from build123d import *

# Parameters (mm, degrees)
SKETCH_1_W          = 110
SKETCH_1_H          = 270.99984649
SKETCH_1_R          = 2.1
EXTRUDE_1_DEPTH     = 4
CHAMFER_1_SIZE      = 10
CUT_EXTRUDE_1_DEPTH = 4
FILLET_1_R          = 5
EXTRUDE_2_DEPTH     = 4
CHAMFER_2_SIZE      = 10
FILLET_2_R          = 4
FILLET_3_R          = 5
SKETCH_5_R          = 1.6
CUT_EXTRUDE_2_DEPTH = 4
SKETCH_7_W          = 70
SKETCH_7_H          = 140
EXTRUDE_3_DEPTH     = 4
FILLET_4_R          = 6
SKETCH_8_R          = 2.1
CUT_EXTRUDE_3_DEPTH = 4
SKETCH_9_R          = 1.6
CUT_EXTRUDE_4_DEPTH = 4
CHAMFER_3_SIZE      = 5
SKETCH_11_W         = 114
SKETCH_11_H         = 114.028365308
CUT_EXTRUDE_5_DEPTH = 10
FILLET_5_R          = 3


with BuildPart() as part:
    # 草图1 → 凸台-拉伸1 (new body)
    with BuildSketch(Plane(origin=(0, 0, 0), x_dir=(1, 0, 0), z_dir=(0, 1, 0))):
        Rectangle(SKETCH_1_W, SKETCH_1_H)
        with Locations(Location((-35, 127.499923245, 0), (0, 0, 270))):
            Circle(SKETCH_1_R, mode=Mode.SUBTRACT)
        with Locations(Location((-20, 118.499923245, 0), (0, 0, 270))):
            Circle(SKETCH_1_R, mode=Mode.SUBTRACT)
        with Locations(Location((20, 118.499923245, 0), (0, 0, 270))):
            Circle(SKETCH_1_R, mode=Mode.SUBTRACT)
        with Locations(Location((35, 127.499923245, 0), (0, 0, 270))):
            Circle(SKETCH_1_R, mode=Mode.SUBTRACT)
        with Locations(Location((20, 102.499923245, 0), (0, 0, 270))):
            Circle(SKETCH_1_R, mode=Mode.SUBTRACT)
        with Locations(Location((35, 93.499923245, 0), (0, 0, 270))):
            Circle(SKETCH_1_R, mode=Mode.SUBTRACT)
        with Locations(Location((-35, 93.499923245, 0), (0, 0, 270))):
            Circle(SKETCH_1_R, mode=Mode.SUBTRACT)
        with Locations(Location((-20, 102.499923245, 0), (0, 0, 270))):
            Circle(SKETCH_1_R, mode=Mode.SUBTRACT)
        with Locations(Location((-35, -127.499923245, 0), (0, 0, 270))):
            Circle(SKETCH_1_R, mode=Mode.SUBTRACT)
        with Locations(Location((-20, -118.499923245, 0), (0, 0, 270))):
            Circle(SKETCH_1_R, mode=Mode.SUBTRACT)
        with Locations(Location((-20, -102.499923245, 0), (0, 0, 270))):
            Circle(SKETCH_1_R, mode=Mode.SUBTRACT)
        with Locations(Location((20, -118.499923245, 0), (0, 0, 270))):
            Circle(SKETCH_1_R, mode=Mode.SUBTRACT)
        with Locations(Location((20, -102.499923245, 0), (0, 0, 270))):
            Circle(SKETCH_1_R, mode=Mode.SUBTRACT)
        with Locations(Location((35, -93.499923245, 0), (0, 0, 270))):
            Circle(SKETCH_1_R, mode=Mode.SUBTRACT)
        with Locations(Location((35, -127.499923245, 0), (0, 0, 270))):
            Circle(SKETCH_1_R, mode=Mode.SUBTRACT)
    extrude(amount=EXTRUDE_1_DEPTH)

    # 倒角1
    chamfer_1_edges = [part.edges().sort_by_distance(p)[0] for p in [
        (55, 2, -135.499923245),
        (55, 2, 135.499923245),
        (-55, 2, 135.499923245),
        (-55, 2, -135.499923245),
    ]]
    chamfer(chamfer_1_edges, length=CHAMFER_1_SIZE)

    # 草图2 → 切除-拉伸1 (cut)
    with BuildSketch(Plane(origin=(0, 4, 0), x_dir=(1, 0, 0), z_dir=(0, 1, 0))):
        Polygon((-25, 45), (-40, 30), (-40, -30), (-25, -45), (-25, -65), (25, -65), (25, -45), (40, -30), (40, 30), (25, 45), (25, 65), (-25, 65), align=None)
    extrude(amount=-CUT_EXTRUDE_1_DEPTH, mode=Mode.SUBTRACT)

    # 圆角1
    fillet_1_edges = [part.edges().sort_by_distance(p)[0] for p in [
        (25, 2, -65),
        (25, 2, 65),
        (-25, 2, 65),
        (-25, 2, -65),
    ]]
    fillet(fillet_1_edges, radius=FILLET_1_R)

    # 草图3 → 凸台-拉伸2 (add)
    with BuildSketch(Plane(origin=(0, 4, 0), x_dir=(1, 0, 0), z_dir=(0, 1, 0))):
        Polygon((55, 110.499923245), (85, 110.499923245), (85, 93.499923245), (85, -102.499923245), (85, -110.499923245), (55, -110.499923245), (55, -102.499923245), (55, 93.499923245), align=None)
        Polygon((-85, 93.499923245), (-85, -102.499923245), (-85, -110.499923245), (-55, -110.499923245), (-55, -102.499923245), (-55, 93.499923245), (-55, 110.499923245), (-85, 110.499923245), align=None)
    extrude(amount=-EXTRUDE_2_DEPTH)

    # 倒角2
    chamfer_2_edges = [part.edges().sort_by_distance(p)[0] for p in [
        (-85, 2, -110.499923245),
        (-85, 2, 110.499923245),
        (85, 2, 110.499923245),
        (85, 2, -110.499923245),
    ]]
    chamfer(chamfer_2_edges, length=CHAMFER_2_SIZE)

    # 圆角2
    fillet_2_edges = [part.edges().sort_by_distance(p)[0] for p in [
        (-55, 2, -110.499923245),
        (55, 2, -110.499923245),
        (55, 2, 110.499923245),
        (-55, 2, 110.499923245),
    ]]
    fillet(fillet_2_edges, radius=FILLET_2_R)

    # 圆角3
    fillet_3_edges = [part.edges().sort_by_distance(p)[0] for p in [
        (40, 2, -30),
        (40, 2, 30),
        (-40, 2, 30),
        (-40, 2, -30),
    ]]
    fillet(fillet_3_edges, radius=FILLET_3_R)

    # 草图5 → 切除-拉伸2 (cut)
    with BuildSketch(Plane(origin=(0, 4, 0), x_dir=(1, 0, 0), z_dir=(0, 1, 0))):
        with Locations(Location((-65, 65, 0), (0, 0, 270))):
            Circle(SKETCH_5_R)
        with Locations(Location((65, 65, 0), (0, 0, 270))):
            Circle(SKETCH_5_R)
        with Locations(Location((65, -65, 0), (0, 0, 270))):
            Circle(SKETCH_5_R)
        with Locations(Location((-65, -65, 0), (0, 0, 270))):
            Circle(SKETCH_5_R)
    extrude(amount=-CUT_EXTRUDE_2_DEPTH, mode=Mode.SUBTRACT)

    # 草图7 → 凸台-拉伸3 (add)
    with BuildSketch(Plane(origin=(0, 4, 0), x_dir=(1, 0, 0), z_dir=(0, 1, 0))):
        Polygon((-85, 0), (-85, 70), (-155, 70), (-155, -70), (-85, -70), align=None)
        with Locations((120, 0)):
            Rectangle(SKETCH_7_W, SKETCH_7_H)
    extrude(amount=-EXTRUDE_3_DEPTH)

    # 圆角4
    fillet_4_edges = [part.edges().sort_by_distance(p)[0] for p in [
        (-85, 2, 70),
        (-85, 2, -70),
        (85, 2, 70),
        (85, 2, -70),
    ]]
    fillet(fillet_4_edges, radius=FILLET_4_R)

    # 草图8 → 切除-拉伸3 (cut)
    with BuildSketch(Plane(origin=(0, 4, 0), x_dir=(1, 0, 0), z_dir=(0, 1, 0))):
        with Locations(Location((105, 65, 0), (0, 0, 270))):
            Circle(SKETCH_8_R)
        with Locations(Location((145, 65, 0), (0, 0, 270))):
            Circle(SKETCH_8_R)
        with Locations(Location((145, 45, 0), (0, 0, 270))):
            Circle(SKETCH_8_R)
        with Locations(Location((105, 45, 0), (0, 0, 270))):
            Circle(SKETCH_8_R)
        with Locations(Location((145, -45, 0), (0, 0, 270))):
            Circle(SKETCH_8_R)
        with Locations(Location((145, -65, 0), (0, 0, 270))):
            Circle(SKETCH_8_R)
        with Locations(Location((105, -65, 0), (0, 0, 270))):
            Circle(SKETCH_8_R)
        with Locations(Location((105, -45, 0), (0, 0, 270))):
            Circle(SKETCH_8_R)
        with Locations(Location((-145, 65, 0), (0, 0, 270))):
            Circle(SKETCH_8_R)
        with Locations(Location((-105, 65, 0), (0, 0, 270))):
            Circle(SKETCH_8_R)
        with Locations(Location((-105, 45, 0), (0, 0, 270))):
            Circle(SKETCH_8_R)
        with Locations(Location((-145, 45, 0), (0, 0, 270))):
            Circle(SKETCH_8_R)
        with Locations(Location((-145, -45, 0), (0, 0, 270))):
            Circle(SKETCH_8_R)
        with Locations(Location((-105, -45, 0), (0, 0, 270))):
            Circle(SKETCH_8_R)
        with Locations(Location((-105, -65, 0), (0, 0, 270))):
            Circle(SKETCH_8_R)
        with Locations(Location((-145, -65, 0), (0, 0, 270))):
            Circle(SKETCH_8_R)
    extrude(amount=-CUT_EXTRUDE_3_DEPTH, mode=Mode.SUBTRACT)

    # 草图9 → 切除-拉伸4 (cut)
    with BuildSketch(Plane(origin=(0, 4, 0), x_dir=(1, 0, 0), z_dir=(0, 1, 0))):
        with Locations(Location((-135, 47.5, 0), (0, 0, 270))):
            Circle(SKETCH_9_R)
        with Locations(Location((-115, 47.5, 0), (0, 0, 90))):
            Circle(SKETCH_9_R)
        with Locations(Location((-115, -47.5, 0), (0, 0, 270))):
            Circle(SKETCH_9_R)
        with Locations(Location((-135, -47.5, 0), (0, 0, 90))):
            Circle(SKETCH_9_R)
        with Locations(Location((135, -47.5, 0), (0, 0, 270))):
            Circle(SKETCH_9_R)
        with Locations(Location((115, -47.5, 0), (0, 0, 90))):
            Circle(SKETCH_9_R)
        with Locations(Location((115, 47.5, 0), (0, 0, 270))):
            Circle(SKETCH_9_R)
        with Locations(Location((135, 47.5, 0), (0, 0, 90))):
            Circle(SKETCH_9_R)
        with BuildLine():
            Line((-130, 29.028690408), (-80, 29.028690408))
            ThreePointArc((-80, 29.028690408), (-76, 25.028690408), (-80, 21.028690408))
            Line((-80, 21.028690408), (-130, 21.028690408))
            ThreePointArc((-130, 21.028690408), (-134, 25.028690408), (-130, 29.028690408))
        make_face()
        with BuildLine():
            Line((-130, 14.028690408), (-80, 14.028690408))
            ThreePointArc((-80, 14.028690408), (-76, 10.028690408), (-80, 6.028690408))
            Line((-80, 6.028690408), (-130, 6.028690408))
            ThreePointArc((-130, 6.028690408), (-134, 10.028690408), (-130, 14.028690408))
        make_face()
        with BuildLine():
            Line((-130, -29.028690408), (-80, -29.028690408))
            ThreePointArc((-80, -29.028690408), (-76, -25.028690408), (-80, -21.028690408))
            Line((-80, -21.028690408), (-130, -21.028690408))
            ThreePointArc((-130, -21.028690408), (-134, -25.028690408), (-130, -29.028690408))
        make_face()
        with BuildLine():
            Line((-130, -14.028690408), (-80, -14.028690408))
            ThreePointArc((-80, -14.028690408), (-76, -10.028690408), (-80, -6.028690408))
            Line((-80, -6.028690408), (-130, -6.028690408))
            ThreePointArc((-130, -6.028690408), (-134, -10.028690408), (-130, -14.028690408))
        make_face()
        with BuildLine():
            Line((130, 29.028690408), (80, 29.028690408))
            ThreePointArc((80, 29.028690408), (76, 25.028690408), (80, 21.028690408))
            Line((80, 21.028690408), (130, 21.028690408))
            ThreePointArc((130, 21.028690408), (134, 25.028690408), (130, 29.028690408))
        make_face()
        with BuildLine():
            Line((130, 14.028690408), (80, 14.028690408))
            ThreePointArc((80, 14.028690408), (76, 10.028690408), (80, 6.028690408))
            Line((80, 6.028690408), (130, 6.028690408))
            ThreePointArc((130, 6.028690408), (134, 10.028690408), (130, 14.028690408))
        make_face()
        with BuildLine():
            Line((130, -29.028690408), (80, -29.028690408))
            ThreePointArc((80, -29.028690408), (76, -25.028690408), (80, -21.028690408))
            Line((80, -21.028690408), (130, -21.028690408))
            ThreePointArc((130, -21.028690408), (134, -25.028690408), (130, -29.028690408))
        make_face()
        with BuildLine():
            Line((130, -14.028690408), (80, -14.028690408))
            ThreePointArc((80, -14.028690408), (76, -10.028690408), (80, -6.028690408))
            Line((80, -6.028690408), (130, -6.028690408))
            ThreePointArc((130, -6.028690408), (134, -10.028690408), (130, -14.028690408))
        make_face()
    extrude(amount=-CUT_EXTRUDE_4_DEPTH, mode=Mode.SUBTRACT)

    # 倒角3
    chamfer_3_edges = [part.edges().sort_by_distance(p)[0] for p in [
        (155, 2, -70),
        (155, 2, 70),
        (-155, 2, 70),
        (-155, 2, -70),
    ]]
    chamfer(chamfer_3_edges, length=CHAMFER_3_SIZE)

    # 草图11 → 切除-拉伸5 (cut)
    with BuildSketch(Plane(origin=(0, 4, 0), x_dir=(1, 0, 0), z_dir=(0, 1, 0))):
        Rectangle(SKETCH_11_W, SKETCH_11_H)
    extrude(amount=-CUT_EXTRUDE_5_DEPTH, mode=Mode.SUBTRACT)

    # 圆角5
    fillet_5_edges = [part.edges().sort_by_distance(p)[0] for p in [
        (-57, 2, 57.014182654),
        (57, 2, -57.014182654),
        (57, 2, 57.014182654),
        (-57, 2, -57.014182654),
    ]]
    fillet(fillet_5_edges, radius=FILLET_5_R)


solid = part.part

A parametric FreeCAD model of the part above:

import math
import FreeCAD as App
import Part
import Sketcher
from FreeCAD import Vector


def edges_at(feature, points):
    """Names of the edges that pass closest to the given points."""
    edges = feature.Shape.Edges
    near = lambda p: min(range(len(edges)), key=lambda i: edges[i].distToShape(Part.Vertex(*p))[0])
    return sorted({f"Edge{near(p) + 1}" for p in points})

doc = App.newDocument("Part")
body = doc.addObject("PartDesign::Body", "Body")

sketch1 = body.newObject("Sketcher::SketchObject", "Sketch")
sketch1.AttachmentSupport = (doc.getObject("XZ_Plane"), [""])
sketch1.MapMode = "FlatFace"
sketch1.addGeometry(Part.LineSegment(Vector(-55, -135.5, 0), Vector(-55, 135.5, 0)), False)
sketch1.addGeometry(Part.LineSegment(Vector(-55, 135.5, 0), Vector(55, 135.5, 0)), False)
sketch1.addGeometry(Part.LineSegment(Vector(55, 135.5, 0), Vector(55, -135.5, 0)), False)
sketch1.addGeometry(Part.LineSegment(Vector(55, -135.5, 0), Vector(-55, -135.5, 0)), False)
sketch1.addGeometry(Part.Circle(Vector(-35, 127.5, 0), Vector(0, 0, 1), 2.1), False)
sketch1.addGeometry(Part.Circle(Vector(-20, 118.5, 0), Vector(0, 0, 1), 2.1), False)
sketch1.addGeometry(Part.Circle(Vector(-20, 102.5, 0), Vector(0, 0, 1), 2.1), False)
sketch1.addGeometry(Part.Circle(Vector(20, 118.5, 0), Vector(0, 0, 1), 2.1), False)
sketch1.addGeometry(Part.Circle(Vector(20, 102.5, 0), Vector(0, 0, 1), 2.1), False)
sketch1.addGeometry(Part.Circle(Vector(35, 127.5, 0), Vector(0, 0, 1), 2.1), False)
sketch1.addGeometry(Part.Circle(Vector(35, 93.5, 0), Vector(0, 0, 1), 2.1), False)
sketch1.addGeometry(Part.Circle(Vector(-35, -93.5, 0), Vector(0, 0, 1), 2.1), False)
sketch1.addGeometry(Part.Circle(Vector(-35, -127.5, 0), Vector(0, 0, 1), 2.1), False)
sketch1.addGeometry(Part.Circle(Vector(-20, -102.5, 0), Vector(0, 0, 1), 2.1), False)
sketch1.addGeometry(Part.Circle(Vector(-20, -118.5, 0), Vector(0, 0, 1), 2.1), False)
sketch1.addGeometry(Part.Circle(Vector(35, -93.5, 0), Vector(0, 0, 1), 2.1), False)
sketch1.addGeometry(Part.Circle(Vector(20, -102.5, 0), Vector(0, 0, 1), 2.1), False)
sketch1.addGeometry(Part.Circle(Vector(20, -118.5, 0), Vector(0, 0, 1), 2.1), False)
sketch1.addGeometry(Part.Circle(Vector(35, -127.5, 0), Vector(0, 0, 1), 2.1), False)
sketch1.addConstraint(Sketcher.Constraint("Coincident", 0, 2, 1, 1))
sketch1.addConstraint(Sketcher.Constraint("Coincident", 1, 2, 2, 1))
sketch1.addConstraint(Sketcher.Constraint("Coincident", 2, 2, 3, 1))
sketch1.addConstraint(Sketcher.Constraint("Coincident", 3, 2, 0, 1))
sketch1.addConstraint(Sketcher.Constraint("Vertical", 0))
sketch1.addConstraint(Sketcher.Constraint("Horizontal", 1))
sketch1.addConstraint(Sketcher.Constraint("Vertical", 2))
sketch1.addConstraint(Sketcher.Constraint("Horizontal", 3))
sketch1.addConstraint(Sketcher.Constraint("Equal", 4, 5))
sketch1.addConstraint(Sketcher.Constraint("Equal", 5, 6))
sketch1.addConstraint(Sketcher.Constraint("Equal", 6, 7))
sketch1.addConstraint(Sketcher.Constraint("Equal", 7, 8))
sketch1.addConstraint(Sketcher.Constraint("Equal", 8, 9))
sketch1.addConstraint(Sketcher.Constraint("Equal", 9, 10))
sketch1.addConstraint(Sketcher.Constraint("Equal", 10, 11))
sketch1.addConstraint(Sketcher.Constraint("Equal", 11, 12))
sketch1.addConstraint(Sketcher.Constraint("Equal", 12, 13))
sketch1.addConstraint(Sketcher.Constraint("Equal", 13, 14))
sketch1.addConstraint(Sketcher.Constraint("Equal", 14, 15))
sketch1.addConstraint(Sketcher.Constraint("Equal", 15, 16))
sketch1.addConstraint(Sketcher.Constraint("Equal", 16, 17))
sketch1.addConstraint(Sketcher.Constraint("Equal", 17, 18))
sketch1.addConstraint(Sketcher.Constraint("Symmetric", 10, 3, 11, 3, -1, 1))
sketch1.addConstraint(Sketcher.Constraint("Symmetric", 9, 3, 12, 3, -1, 1))
sketch1.addConstraint(Sketcher.Constraint("Symmetric", 8, 3, 13, 3, -1, 1))
sketch1.addConstraint(Sketcher.Constraint("Symmetric", 7, 3, 14, 3, -1, 1))
sketch1.addConstraint(Sketcher.Constraint("Symmetric", 6, 3, 16, 3, -1, 1))
sketch1.addConstraint(Sketcher.Constraint("Symmetric", 5, 3, 17, 3, -1, 1))
sketch1.addConstraint(Sketcher.Constraint("Symmetric", 4, 3, 18, 3, -1, 1))
sketch1.addConstraint(Sketcher.Constraint("Symmetric", 0, 2, 2, 2, -1, 1))
sketch1.addConstraint(Sketcher.Constraint("Symmetric", 5, 3, 7, 3, -2))
sketch1.addConstraint(Sketcher.Constraint("Symmetric", 6, 3, 8, 3, -2))
sketch1.addConstraint(Sketcher.Constraint("Symmetric", 4, 3, 9, 3, -2))
sketch1.addConstraint(Sketcher.Constraint("Symmetric", 11, 3, 15, 3, -2))
sketch1.addConstraint(Sketcher.Constraint("Vertical", 5, 3, 6, 3))
sketch1.addConstraint(Sketcher.Constraint("Vertical", 9, 3, 10, 3))
sketch1.addConstraint(Sketcher.Constraint("Diameter", 4, 4.2))
sketch1.addConstraint(Sketcher.Constraint("DistanceX", 1, 1, 1, 2, 110.0))
sketch1.addConstraint(Sketcher.Constraint("DistanceX", 4, 3, -1, 1, 35.0))
sketch1.addConstraint(Sketcher.Constraint("DistanceX", 5, 3, -1, 1, 20.0))
sketch1.addConstraint(Sketcher.Constraint("DistanceY", 5, 3, 4, 3, 9.0))
sketch1.addConstraint(Sketcher.Constraint("DistanceY", 6, 3, 5, 3, 16.0))
sketch1.addConstraint(Sketcher.Constraint("DistanceY", 10, 3, 8, 3, 9.0))
sketch1.addConstraint(Sketcher.Constraint("DistanceY", 4, 3, 0, 2, 8.0))
sketch1.addConstraint(Sketcher.Constraint("DistanceY", 0, 1, 0, 2, 270.999846))
pad1 = body.newObject("PartDesign::Pad", "Pad")
pad1.Profile = sketch1
pad1.Length = 4
pad1.Reversed = True
doc.recompute()

chamfer = body.newObject("PartDesign::Chamfer", "Chamfer")
chamfer.Base = (pad1, edges_at(pad1, [
    (55, 2, -135.5),
    (55, 2, 135.5),
    (-55, 2, 135.5),
    (-55, 2, -135.5),
]))
chamfer.Size = 10

sketch2 = body.newObject("Sketcher::SketchObject", "Sketch001")
sketch2.AttachmentSupport = (doc.getObject("XZ_Plane"), [""])
sketch2.MapMode = "FlatFace"
sketch2.AttachmentOffset = App.Placement(Vector(0, 0, -4), App.Rotation())
sketch2.addGeometry(Part.LineSegment(Vector(-25, -45, 0), Vector(-40, -30, 0)), False)
sketch2.addGeometry(Part.LineSegment(Vector(-40, -30, 0), Vector(-40, 30, 0)), False)
sketch2.addGeometry(Part.LineSegment(Vector(-40, 30, 0), Vector(-25, 45, 0)), False)
sketch2.addGeometry(Part.LineSegment(Vector(-25, 45, 0), Vector(-25, 65, 0)), False)
sketch2.addGeometry(Part.LineSegment(Vector(-25, 65, 0), Vector(25, 65, 0)), False)
sketch2.addGeometry(Part.LineSegment(Vector(25, 65, 0), Vector(25, 45, 0)), False)
sketch2.addGeometry(Part.LineSegment(Vector(25, 45, 0), Vector(40, 30, 0)), False)
sketch2.addGeometry(Part.LineSegment(Vector(40, 30, 0), Vector(40, -30, 0)), False)
sketch2.addGeometry(Part.LineSegment(Vector(40, -30, 0), Vector(25, -45, 0)), False)
sketch2.addGeometry(Part.LineSegment(Vector(25, -45, 0), Vector(25, -65, 0)), False)
sketch2.addGeometry(Part.LineSegment(Vector(25, -65, 0), Vector(-25, -65, 0)), False)
sketch2.addGeometry(Part.LineSegment(Vector(-25, -65, 0), Vector(-25, -45, 0)), False)
sketch2.addConstraint(Sketcher.Constraint("Coincident", 0, 2, 1, 1))
sketch2.addConstraint(Sketcher.Constraint("Coincident", 1, 2, 2, 1))
sketch2.addConstraint(Sketcher.Constraint("Coincident", 2, 2, 3, 1))
sketch2.addConstraint(Sketcher.Constraint("Coincident", 3, 2, 4, 1))
sketch2.addConstraint(Sketcher.Constraint("Coincident", 4, 2, 5, 1))
sketch2.addConstraint(Sketcher.Constraint("Coincident", 5, 2, 6, 1))
sketch2.addConstraint(Sketcher.Constraint("Coincident", 6, 2, 7, 1))
sketch2.addConstraint(Sketcher.Constraint("Coincident", 7, 2, 8, 1))
sketch2.addConstraint(Sketcher.Constraint("Coincident", 8, 2, 9, 1))
sketch2.addConstraint(Sketcher.Constraint("Coincident", 9, 2, 10, 1))
sketch2.addConstraint(Sketcher.Constraint("Coincident", 10, 2, 11, 1))
sketch2.addConstraint(Sketcher.Constraint("Coincident", 11, 2, 0, 1))
sketch2.addConstraint(Sketcher.Constraint("Vertical", 1))
sketch2.addConstraint(Sketcher.Constraint("Vertical", 3))
sketch2.addConstraint(Sketcher.Constraint("Horizontal", 4))
sketch2.addConstraint(Sketcher.Constraint("Vertical", 5))
sketch2.addConstraint(Sketcher.Constraint("Vertical", 7))
sketch2.addConstraint(Sketcher.Constraint("Vertical", 9))
sketch2.addConstraint(Sketcher.Constraint("Horizontal", 10))
sketch2.addConstraint(Sketcher.Constraint("Vertical", 11))
sketch2.addConstraint(Sketcher.Constraint("Symmetric", 0, 2, 6, 2, -1, 1))
sketch2.addConstraint(Sketcher.Constraint("Symmetric", 2, 2, 8, 2, -1, 1))
sketch2.addConstraint(Sketcher.Constraint("Symmetric", 4, 2, 10, 2, -1, 1))
sketch2.addConstraint(Sketcher.Constraint("Symmetric", 2, 2, 5, 2, -2))
sketch2.addConstraint(Sketcher.Constraint("Perpendicular", 0, 2))
sketch2.addConstraint(Sketcher.Constraint("Perpendicular", 2, 6))
sketch2.addConstraint(Sketcher.Constraint("Perpendicular", 6, 8))
sketch2.addConstraint(Sketcher.Constraint("Horizontal", 1, 2, 6, 2))
sketch2.addConstraint(Sketcher.Constraint("DistanceX", 4, 1, 4, 2, 50.0))
sketch2.addConstraint(Sketcher.Constraint("DistanceY", 1, 1, 1, 2, 60.0))
sketch2.addConstraint(Sketcher.Constraint("DistanceY", 3, 1, 3, 2, 20.0))
sketch2.addConstraint(Sketcher.Constraint("DistanceX", 0, 2, -1, 1, 40.0))
pocket1 = body.newObject("PartDesign::Pocket", "Pocket")
pocket1.Profile = sketch2
pocket1.Length = 4
pocket1.Reversed = True
doc.recompute()

fillet = body.newObject("PartDesign::Fillet", "Fillet")
fillet.Base = (pocket1, edges_at(pocket1, [
    (25, 2, -65),
    (25, 2, 65),
    (-25, 2, 65),
    (-25, 2, -65),
]))
fillet.Radius = 5

sketch3 = body.newObject("Sketcher::SketchObject", "Sketch002")
sketch3.AttachmentSupport = (doc.getObject("XZ_Plane"), [""])
sketch3.MapMode = "FlatFace"
sketch3.AttachmentOffset = App.Placement(Vector(0, 0, -4), App.Rotation())
sketch3.addGeometry(Part.LineSegment(Vector(85, -110, 0), Vector(55, -110, 0)), False)
sketch3.addGeometry(Part.LineSegment(Vector(55, -110, 0), Vector(55, 110, 0)), False)
sketch3.addGeometry(Part.LineSegment(Vector(55, 110, 0), Vector(85, 110, 0)), False)
sketch3.addGeometry(Part.LineSegment(Vector(85, 110, 0), Vector(85, -110, 0)), False)
sketch3.addGeometry(Part.LineSegment(Vector(-85, 110, 0), Vector(-55, 110, 0)), False)
sketch3.addGeometry(Part.LineSegment(Vector(-55, 110, 0), Vector(-55, -110, 0)), False)
sketch3.addGeometry(Part.LineSegment(Vector(-55, -110, 0), Vector(-85, -110, 0)), False)
sketch3.addGeometry(Part.LineSegment(Vector(-85, -110, 0), Vector(-85, 110, 0)), False)
sketch3.addConstraint(Sketcher.Constraint("Coincident", 0, 2, 1, 1))
sketch3.addConstraint(Sketcher.Constraint("Coincident", 1, 2, 2, 1))
sketch3.addConstraint(Sketcher.Constraint("Coincident", 2, 2, 3, 1))
sketch3.addConstraint(Sketcher.Constraint("Coincident", 3, 2, 0, 1))
sketch3.addConstraint(Sketcher.Constraint("Coincident", 4, 2, 5, 1))
sketch3.addConstraint(Sketcher.Constraint("Coincident", 5, 2, 6, 1))
sketch3.addConstraint(Sketcher.Constraint("Coincident", 6, 2, 7, 1))
sketch3.addConstraint(Sketcher.Constraint("Coincident", 7, 2, 4, 1))
sketch3.addConstraint(Sketcher.Constraint("Horizontal", 0))
sketch3.addConstraint(Sketcher.Constraint("Vertical", 1))
sketch3.addConstraint(Sketcher.Constraint("Horizontal", 2))
sketch3.addConstraint(Sketcher.Constraint("Vertical", 3))
sketch3.addConstraint(Sketcher.Constraint("Horizontal", 4))
sketch3.addConstraint(Sketcher.Constraint("Vertical", 5))
sketch3.addConstraint(Sketcher.Constraint("Horizontal", 6))
sketch3.addConstraint(Sketcher.Constraint("Vertical", 7))
sketch3.addConstraint(Sketcher.Constraint("Symmetric", 0, 2, 4, 2, -1, 1))
sketch3.addConstraint(Sketcher.Constraint("Symmetric", 2, 2, 6, 2, -1, 1))
sketch3.addConstraint(Sketcher.Constraint("Horizontal", 2, 2, 4, 2))
sketch3.addConstraint(Sketcher.Constraint("DistanceX", 0, 2, 0, 1, 30.0))
sketch3.addConstraint(Sketcher.Constraint("DistanceX", -1, 1, 0, 2, 55.0))
sketch3.addConstraint(Sketcher.Constraint("DistanceY", 1, 1, 1, 2, 220.999846))
pad2 = body.newObject("PartDesign::Pad", "Pad001")
pad2.Profile = sketch3
pad2.Length = 4
doc.recompute()

chamfer2 = body.newObject("PartDesign::Chamfer", "Chamfer001")
chamfer2.Base = (pad2, edges_at(pad2, [
    (-85, 2, -110.5),
    (-85, 2, 110.5),
    (85, 2, 110.5),
    (85, 2, -110.5),
]))
chamfer2.Size = 10
doc.recompute()

fillet2 = body.newObject("PartDesign::Fillet", "Fillet001")
fillet2.Base = (chamfer2, edges_at(chamfer2, [
    (-55, 2, -110.5),
    (55, 2, -110.5),
    (55, 2, 110.5),
    (-55, 2, 110.5),
]))
fillet2.Radius = 4
doc.recompute()

fillet3 = body.newObject("PartDesign::Fillet", "Fillet002")
fillet3.Base = (fillet2, edges_at(fillet2, [
    (40, 2, -30),
    (40, 2, 30),
    (-40, 2, 30),
    (-40, 2, -30),
]))
fillet3.Radius = 5

sketch4 = body.newObject("Sketcher::SketchObject", "Sketch003")
sketch4.AttachmentSupport = (doc.getObject("XZ_Plane"), [""])
sketch4.MapMode = "FlatFace"
sketch4.AttachmentOffset = App.Placement(Vector(0, 0, -4), App.Rotation())
sketch4.addGeometry(Part.Circle(Vector(-65, -65, 0), Vector(0, 0, 1), 1.6), False)
sketch4.addGeometry(Part.Circle(Vector(65, -65, 0), Vector(0, 0, 1), 1.6), False)
sketch4.addGeometry(Part.Circle(Vector(65, 65, 0), Vector(0, 0, 1), 1.6), False)
sketch4.addGeometry(Part.Circle(Vector(-65, 65, 0), Vector(0, 0, 1), 1.6), False)
sketch4.addConstraint(Sketcher.Constraint("Equal", 0, 1))
sketch4.addConstraint(Sketcher.Constraint("Equal", 1, 2))
sketch4.addConstraint(Sketcher.Constraint("Equal", 2, 3))
sketch4.addConstraint(Sketcher.Constraint("Symmetric", 0, 3, 2, 3, -1, 1))
sketch4.addConstraint(Sketcher.Constraint("Symmetric", 1, 3, 3, 3, -1, 1))
sketch4.addConstraint(Sketcher.Constraint("Symmetric", 0, 3, 1, 3, -2))
sketch4.addConstraint(Sketcher.Constraint("Diameter", 0, 3.2))
sketch4.addConstraint(Sketcher.Constraint("DistanceX", 0, 3, -1, 1, 65.0))
sketch4.addConstraint(Sketcher.Constraint("DistanceY", 0, 3, -1, 1, 65.0))
pocket2 = body.newObject("PartDesign::Pocket", "Pocket001")
pocket2.Profile = sketch4
pocket2.Length = 4
pocket2.Reversed = True

sketch5 = body.newObject("Sketcher::SketchObject", "Sketch004")
sketch5.AttachmentSupport = (doc.getObject("XZ_Plane"), [""])
sketch5.MapMode = "FlatFace"
sketch5.AttachmentOffset = App.Placement(Vector(0, 0, -4), App.Rotation())
sketch5.addGeometry(Part.LineSegment(Vector(-85, -70, 0), Vector(-155, -70, 0)), False)
sketch5.addGeometry(Part.LineSegment(Vector(-155, -70, 0), Vector(-155, 70, 0)), False)
sketch5.addGeometry(Part.LineSegment(Vector(-155, 70, 0), Vector(-85, 70, 0)), False)
sketch5.addGeometry(Part.LineSegment(Vector(-85, 70, 0), Vector(-85, -70, 0)), False)
sketch5.addGeometry(Part.LineSegment(Vector(85, -70, 0), Vector(85, 70, 0)), False)
sketch5.addGeometry(Part.LineSegment(Vector(85, 70, 0), Vector(155, 70, 0)), False)
sketch5.addGeometry(Part.LineSegment(Vector(155, 70, 0), Vector(155, -70, 0)), False)
sketch5.addGeometry(Part.LineSegment(Vector(155, -70, 0), Vector(85, -70, 0)), False)
sketch5.addConstraint(Sketcher.Constraint("Coincident", 0, 2, 1, 1))
sketch5.addConstraint(Sketcher.Constraint("Coincident", 1, 2, 2, 1))
sketch5.addConstraint(Sketcher.Constraint("Coincident", 2, 2, 3, 1))
sketch5.addConstraint(Sketcher.Constraint("Coincident", 3, 2, 0, 1))
sketch5.addConstraint(Sketcher.Constraint("Coincident", 4, 2, 5, 1))
sketch5.addConstraint(Sketcher.Constraint("Coincident", 5, 2, 6, 1))
sketch5.addConstraint(Sketcher.Constraint("Coincident", 6, 2, 7, 1))
sketch5.addConstraint(Sketcher.Constraint("Coincident", 7, 2, 4, 1))
sketch5.addConstraint(Sketcher.Constraint("Horizontal", 0))
sketch5.addConstraint(Sketcher.Constraint("Vertical", 1))
sketch5.addConstraint(Sketcher.Constraint("Horizontal", 2))
sketch5.addConstraint(Sketcher.Constraint("Vertical", 3))
sketch5.addConstraint(Sketcher.Constraint("Vertical", 4))
sketch5.addConstraint(Sketcher.Constraint("Horizontal", 5))
sketch5.addConstraint(Sketcher.Constraint("Vertical", 6))
sketch5.addConstraint(Sketcher.Constraint("Horizontal", 7))
sketch5.addConstraint(Sketcher.Constraint("Symmetric", 3, 2, 4, 2, -1, 1))
sketch5.addConstraint(Sketcher.Constraint("Symmetric", 1, 2, 6, 2, -1, 1))
sketch5.addConstraint(Sketcher.Constraint("Horizontal", 2, 2, 4, 2))
sketch5.addConstraint(Sketcher.Constraint("DistanceX", 0, 2, 0, 1, 70.0))
sketch5.addConstraint(Sketcher.Constraint("DistanceY", 1, 1, 1, 2, 140.0))
sketch5.addConstraint(Sketcher.Constraint("DistanceX", 0, 2, -1, 1, 155.0))
pad3 = body.newObject("PartDesign::Pad", "Pad002")
pad3.Profile = sketch5
pad3.Length = 4
doc.recompute()

fillet4 = body.newObject("PartDesign::Fillet", "Fillet003")
fillet4.Base = (pad3, edges_at(pad3, [
    (-85, 2, 70),
    (-85, 2, -70),
    (85, 2, 70),
    (85, 2, -70),
]))
fillet4.Radius = 6

sketch6 = body.newObject("Sketcher::SketchObject", "Sketch005")
sketch6.AttachmentSupport = (doc.getObject("XZ_Plane"), [""])
sketch6.MapMode = "FlatFace"
sketch6.AttachmentOffset = App.Placement(Vector(0, 0, -4), App.Rotation())
sketch6.addGeometry(Part.Circle(Vector(105, -65, 0), Vector(0, 0, 1), 2.1), False)
sketch6.addGeometry(Part.Circle(Vector(145, -65, 0), Vector(0, 0, 1), 2.1), False)
sketch6.addGeometry(Part.Circle(Vector(145, -45, 0), Vector(0, 0, 1), 2.1), False)
sketch6.addGeometry(Part.Circle(Vector(105, -45, 0), Vector(0, 0, 1), 2.1), False)
sketch6.addGeometry(Part.Circle(Vector(145, 45, 0), Vector(0, 0, 1), 2.1), False)
sketch6.addGeometry(Part.Circle(Vector(145, 65, 0), Vector(0, 0, 1), 2.1), False)
sketch6.addGeometry(Part.Circle(Vector(105, 65, 0), Vector(0, 0, 1), 2.1), False)
sketch6.addGeometry(Part.Circle(Vector(105, 45, 0), Vector(0, 0, 1), 2.1), False)
sketch6.addGeometry(Part.Circle(Vector(-145, -65, 0), Vector(0, 0, 1), 2.1), False)
sketch6.addGeometry(Part.Circle(Vector(-105, -65, 0), Vector(0, 0, 1), 2.1), False)
sketch6.addGeometry(Part.Circle(Vector(-105, -45, 0), Vector(0, 0, 1), 2.1), False)
sketch6.addGeometry(Part.Circle(Vector(-145, -45, 0), Vector(0, 0, 1), 2.1), False)
sketch6.addGeometry(Part.Circle(Vector(-145, 45, 0), Vector(0, 0, 1), 2.1), False)
sketch6.addGeometry(Part.Circle(Vector(-105, 45, 0), Vector(0, 0, 1), 2.1), False)
sketch6.addGeometry(Part.Circle(Vector(-105, 65, 0), Vector(0, 0, 1), 2.1), False)
sketch6.addGeometry(Part.Circle(Vector(-145, 65, 0), Vector(0, 0, 1), 2.1), False)
sketch6.addConstraint(Sketcher.Constraint("Equal", 0, 1))
sketch6.addConstraint(Sketcher.Constraint("Equal", 1, 2))
sketch6.addConstraint(Sketcher.Constraint("Equal", 2, 3))
sketch6.addConstraint(Sketcher.Constraint("Equal", 3, 4))
sketch6.addConstraint(Sketcher.Constraint("Equal", 4, 5))
sketch6.addConstraint(Sketcher.Constraint("Equal", 5, 6))
sketch6.addConstraint(Sketcher.Constraint("Equal", 6, 7))
sketch6.addConstraint(Sketcher.Constraint("Equal", 7, 8))
sketch6.addConstraint(Sketcher.Constraint("Equal", 8, 9))
sketch6.addConstraint(Sketcher.Constraint("Equal", 9, 10))
sketch6.addConstraint(Sketcher.Constraint("Equal", 10, 11))
sketch6.addConstraint(Sketcher.Constraint("Equal", 11, 12))
sketch6.addConstraint(Sketcher.Constraint("Equal", 12, 13))
sketch6.addConstraint(Sketcher.Constraint("Equal", 13, 14))
sketch6.addConstraint(Sketcher.Constraint("Equal", 14, 15))
sketch6.addConstraint(Sketcher.Constraint("Symmetric", 5, 3, 8, 3, -1, 1))
sketch6.addConstraint(Sketcher.Constraint("Symmetric", 6, 3, 9, 3, -1, 1))
sketch6.addConstraint(Sketcher.Constraint("Symmetric", 7, 3, 10, 3, -1, 1))
sketch6.addConstraint(Sketcher.Constraint("Symmetric", 4, 3, 11, 3, -1, 1))
sketch6.addConstraint(Sketcher.Constraint("Symmetric", 2, 3, 12, 3, -1, 1))
sketch6.addConstraint(Sketcher.Constraint("Symmetric", 3, 3, 13, 3, -1, 1))
sketch6.addConstraint(Sketcher.Constraint("Symmetric", 0, 3, 14, 3, -1, 1))
sketch6.addConstraint(Sketcher.Constraint("Symmetric", 1, 3, 15, 3, -1, 1))
sketch6.addConstraint(Sketcher.Constraint("Symmetric", 1, 3, 8, 3, -2))
sketch6.addConstraint(Sketcher.Constraint("Symmetric", 0, 3, 9, 3, -2))
sketch6.addConstraint(Sketcher.Constraint("Symmetric", 3, 3, 10, 3, -2))
sketch6.addConstraint(Sketcher.Constraint("Symmetric", 2, 3, 11, 3, -2))
sketch6.addConstraint(Sketcher.Constraint("Horizontal", 0, 3, 1, 3))
sketch6.addConstraint(Sketcher.Constraint("Horizontal", 2, 3, 3, 3))
sketch6.addConstraint(Sketcher.Constraint("Vertical", 1, 3, 2, 3))
sketch6.addConstraint(Sketcher.Constraint("Vertical", 0, 3, 3, 3))
sketch6.addConstraint(Sketcher.Constraint("Diameter", 0, 4.2))
sketch6.addConstraint(Sketcher.Constraint("DistanceX", -1, 1, 0, 3, 105.0))
sketch6.addConstraint(Sketcher.Constraint("DistanceY", 0, 3, -1, 1, 65.0))
sketch6.addConstraint(Sketcher.Constraint("DistanceX", -1, 1, 1, 3, 145.0))
sketch6.addConstraint(Sketcher.Constraint("DistanceY", 2, 3, -1, 1, 45.0))
pocket3 = body.newObject("PartDesign::Pocket", "Pocket002")
pocket3.Profile = sketch6
pocket3.Length = 4
pocket3.Reversed = True

sketch7 = body.newObject("Sketcher::SketchObject", "Sketch006")
sketch7.AttachmentSupport = (doc.getObject("XZ_Plane"), [""])
sketch7.MapMode = "FlatFace"
sketch7.AttachmentOffset = App.Placement(Vector(0, 0, -4), App.Rotation())
sketch7.addGeometry(Part.Circle(Vector(-135, -47.5, 0), Vector(0, 0, 1), 1.6), False)
sketch7.addGeometry(Part.Circle(Vector(-115, -47.5, 0), Vector(0, 0, 1), 1.6), False)
sketch7.addGeometry(Part.Circle(Vector(-115, 47.5, 0), Vector(0, 0, 1), 1.6), False)
sketch7.addGeometry(Part.Circle(Vector(-135, 47.5, 0), Vector(0, 0, 1), 1.6), False)
sketch7.addGeometry(Part.Circle(Vector(135, 47.5, 0), Vector(0, 0, 1), 1.6), False)
sketch7.addGeometry(Part.Circle(Vector(115, 47.5, 0), Vector(0, 0, 1), 1.6), False)
sketch7.addGeometry(Part.Circle(Vector(115, -47.5, 0), Vector(0, 0, 1), 1.6), False)
sketch7.addGeometry(Part.Circle(Vector(135, -47.5, 0), Vector(0, 0, 1), 1.6), False)
sketch7.addGeometry(Part.LineSegment(Vector(-80, -29, 0), Vector(-130, -29, 0)), False)
sketch7.addGeometry(Part.ArcOfCircle(Part.Circle(Vector(-130, -25, 0), Vector(0, 0, 1), 4), math.radians(90), math.radians(270)), False)
sketch7.addGeometry(Part.LineSegment(Vector(-130, -21, 0), Vector(-80, -21, 0)), False)
sketch7.addGeometry(Part.ArcOfCircle(Part.Circle(Vector(-80, -25, 0), Vector(0, 0, 1), 4), math.radians(-90), math.radians(90)), False)
sketch7.addGeometry(Part.LineSegment(Vector(-80, -14, 0), Vector(-130, -14, 0)), False)
sketch7.addGeometry(Part.ArcOfCircle(Part.Circle(Vector(-130, -10, 0), Vector(0, 0, 1), 4), math.radians(90), math.radians(270)), False)
sketch7.addGeometry(Part.LineSegment(Vector(-130, -6, 0), Vector(-80, -6, 0)), False)
sketch7.addGeometry(Part.ArcOfCircle(Part.Circle(Vector(-80, -10, 0), Vector(0, 0, 1), 4), math.radians(-90), math.radians(90)), False)
sketch7.addGeometry(Part.LineSegment(Vector(-130, 29, 0), Vector(-80, 29, 0)), False)
sketch7.addGeometry(Part.ArcOfCircle(Part.Circle(Vector(-80, 25, 0), Vector(0, 0, 1), 4), math.radians(-90), math.radians(90)), False)
sketch7.addGeometry(Part.LineSegment(Vector(-80, 21, 0), Vector(-130, 21, 0)), False)
sketch7.addGeometry(Part.ArcOfCircle(Part.Circle(Vector(-130, 25, 0), Vector(0, 0, 1), 4), math.radians(90), math.radians(270)), False)
sketch7.addGeometry(Part.LineSegment(Vector(-130, 14, 0), Vector(-80, 14, 0)), False)
sketch7.addGeometry(Part.ArcOfCircle(Part.Circle(Vector(-80, 10, 0), Vector(0, 0, 1), 4), math.radians(-90), math.radians(90)), False)
sketch7.addGeometry(Part.LineSegment(Vector(-80, 6, 0), Vector(-130, 6, 0)), False)
sketch7.addGeometry(Part.ArcOfCircle(Part.Circle(Vector(-130, 10, 0), Vector(0, 0, 1), 4), math.radians(90), math.radians(270)), False)
sketch7.addGeometry(Part.LineSegment(Vector(130, -29, 0), Vector(80, -29, 0)), False)
sketch7.addGeometry(Part.ArcOfCircle(Part.Circle(Vector(80, -25, 0), Vector(0, 0, 1), 4), math.radians(90), math.radians(270)), False)
sketch7.addGeometry(Part.LineSegment(Vector(80, -21, 0), Vector(130, -21, 0)), False)
sketch7.addGeometry(Part.ArcOfCircle(Part.Circle(Vector(130, -25, 0), Vector(0, 0, 1), 4), math.radians(-90), math.radians(90)), False)
sketch7.addGeometry(Part.LineSegment(Vector(130, -14, 0), Vector(80, -14, 0)), False)
sketch7.addGeometry(Part.ArcOfCircle(Part.Circle(Vector(80, -10, 0), Vector(0, 0, 1), 4), math.radians(90), math.radians(270)), False)
sketch7.addGeometry(Part.LineSegment(Vector(80, -6, 0), Vector(130, -6, 0)), False)
sketch7.addGeometry(Part.ArcOfCircle(Part.Circle(Vector(130, -10, 0), Vector(0, 0, 1), 4), math.radians(-90), math.radians(90)), False)
sketch7.addGeometry(Part.LineSegment(Vector(80, 29, 0), Vector(130, 29, 0)), False)
sketch7.addGeometry(Part.ArcOfCircle(Part.Circle(Vector(130, 25, 0), Vector(0, 0, 1), 4), math.radians(-90), math.radians(90)), False)
sketch7.addGeometry(Part.LineSegment(Vector(130, 21, 0), Vector(80, 21, 0)), False)
sketch7.addGeometry(Part.ArcOfCircle(Part.Circle(Vector(80, 25, 0), Vector(0, 0, 1), 4), math.radians(90), math.radians(270)), False)
sketch7.addGeometry(Part.LineSegment(Vector(80, 14, 0), Vector(130, 14, 0)), False)
sketch7.addGeometry(Part.ArcOfCircle(Part.Circle(Vector(130, 10, 0), Vector(0, 0, 1), 4), math.radians(-90), math.radians(90)), False)
sketch7.addGeometry(Part.LineSegment(Vector(130, 6, 0), Vector(80, 6, 0)), False)
sketch7.addGeometry(Part.ArcOfCircle(Part.Circle(Vector(80, 10, 0), Vector(0, 0, 1), 4), math.radians(90), math.radians(270)), False)
sketch7.addConstraint(Sketcher.Constraint("Tangent", 8, 2, 9, 2))
sketch7.addConstraint(Sketcher.Constraint("Tangent", 9, 1, 10, 1))
sketch7.addConstraint(Sketcher.Constraint("Tangent", 10, 2, 11, 2))
sketch7.addConstraint(Sketcher.Constraint("Tangent", 11, 1, 8, 1))
sketch7.addConstraint(Sketcher.Constraint("Tangent", 12, 2, 13, 2))
sketch7.addConstraint(Sketcher.Constraint("Tangent", 13, 1, 14, 1))
sketch7.addConstraint(Sketcher.Constraint("Tangent", 14, 2, 15, 2))
sketch7.addConstraint(Sketcher.Constraint("Tangent", 15, 1, 12, 1))
sketch7.addConstraint(Sketcher.Constraint("Tangent", 16, 2, 17, 2))
sketch7.addConstraint(Sketcher.Constraint("Tangent", 17, 1, 18, 1))
sketch7.addConstraint(Sketcher.Constraint("Tangent", 18, 2, 19, 2))
sketch7.addConstraint(Sketcher.Constraint("Tangent", 19, 1, 16, 1))
sketch7.addConstraint(Sketcher.Constraint("Tangent", 20, 2, 21, 2))
sketch7.addConstraint(Sketcher.Constraint("Tangent", 21, 1, 22, 1))
sketch7.addConstraint(Sketcher.Constraint("Tangent", 22, 2, 23, 2))
sketch7.addConstraint(Sketcher.Constraint("Tangent", 23, 1, 20, 1))
sketch7.addConstraint(Sketcher.Constraint("Tangent", 24, 2, 25, 2))
sketch7.addConstraint(Sketcher.Constraint("Tangent", 25, 1, 26, 1))
sketch7.addConstraint(Sketcher.Constraint("Tangent", 26, 2, 27, 2))
sketch7.addConstraint(Sketcher.Constraint("Tangent", 27, 1, 24, 1))
sketch7.addConstraint(Sketcher.Constraint("Tangent", 28, 2, 29, 2))
sketch7.addConstraint(Sketcher.Constraint("Tangent", 29, 1, 30, 1))
sketch7.addConstraint(Sketcher.Constraint("Tangent", 30, 2, 31, 2))
sketch7.addConstraint(Sketcher.Constraint("Tangent", 31, 1, 28, 1))
sketch7.addConstraint(Sketcher.Constraint("Tangent", 32, 2, 33, 2))
sketch7.addConstraint(Sketcher.Constraint("Tangent", 33, 1, 34, 1))
sketch7.addConstraint(Sketcher.Constraint("Tangent", 34, 2, 35, 2))
sketch7.addConstraint(Sketcher.Constraint("Tangent", 35, 1, 32, 1))
sketch7.addConstraint(Sketcher.Constraint("Tangent", 36, 2, 37, 2))
sketch7.addConstraint(Sketcher.Constraint("Tangent", 37, 1, 38, 1))
sketch7.addConstraint(Sketcher.Constraint("Tangent", 38, 2, 39, 2))
sketch7.addConstraint(Sketcher.Constraint("Tangent", 39, 1, 36, 1))
sketch7.addConstraint(Sketcher.Constraint("Horizontal", 8))
sketch7.addConstraint(Sketcher.Constraint("Horizontal", 10))
sketch7.addConstraint(Sketcher.Constraint("Horizontal", 12))
sketch7.addConstraint(Sketcher.Constraint("Horizontal", 14))
sketch7.addConstraint(Sketcher.Constraint("Horizontal", 16))
sketch7.addConstraint(Sketcher.Constraint("Horizontal", 18))
sketch7.addConstraint(Sketcher.Constraint("Horizontal", 20))
sketch7.addConstraint(Sketcher.Constraint("Horizontal", 22))
sketch7.addConstraint(Sketcher.Constraint("Horizontal", 24))
sketch7.addConstraint(Sketcher.Constraint("Horizontal", 26))
sketch7.addConstraint(Sketcher.Constraint("Horizontal", 28))
sketch7.addConstraint(Sketcher.Constraint("Horizontal", 30))
sketch7.addConstraint(Sketcher.Constraint("Horizontal", 32))
sketch7.addConstraint(Sketcher.Constraint("Horizontal", 34))
sketch7.addConstraint(Sketcher.Constraint("Horizontal", 36))
sketch7.addConstraint(Sketcher.Constraint("Horizontal", 38))
sketch7.addConstraint(Sketcher.Constraint("Equal", 0, 1))
sketch7.addConstraint(Sketcher.Constraint("Equal", 1, 2))
sketch7.addConstraint(Sketcher.Constraint("Equal", 2, 3))
sketch7.addConstraint(Sketcher.Constraint("Equal", 3, 4))
sketch7.addConstraint(Sketcher.Constraint("Equal", 4, 5))
sketch7.addConstraint(Sketcher.Constraint("Equal", 5, 6))
sketch7.addConstraint(Sketcher.Constraint("Equal", 6, 7))
sketch7.addConstraint(Sketcher.Constraint("Equal", 11, 13))
sketch7.addConstraint(Sketcher.Constraint("Equal", 15, 17))
sketch7.addConstraint(Sketcher.Constraint("Equal", 19, 21))
sketch7.addConstraint(Sketcher.Constraint("Equal", 23, 25))
sketch7.addConstraint(Sketcher.Constraint("Equal", 27, 29))
sketch7.addConstraint(Sketcher.Constraint("Equal", 31, 33))
sketch7.addConstraint(Sketcher.Constraint("Equal", 35, 37))
sketch7.addConstraint(Sketcher.Constraint("Symmetric", 0, 3, 4, 3, -1, 1))
sketch7.addConstraint(Sketcher.Constraint("Symmetric", 1, 3, 5, 3, -1, 1))
sketch7.addConstraint(Sketcher.Constraint("Symmetric", 2, 3, 6, 3, -1, 1))
sketch7.addConstraint(Sketcher.Constraint("Symmetric", 3, 3, 7, 3, -1, 1))
sketch7.addConstraint(Sketcher.Constraint("Symmetric", 17, 3, 25, 3, -1, 1))
sketch7.addConstraint(Sketcher.Constraint("Symmetric", 21, 3, 29, 3, -1, 1))
sketch7.addConstraint(Sketcher.Constraint("Symmetric", 9, 3, 33, 3, -1, 1))
sketch7.addConstraint(Sketcher.Constraint("Symmetric", 13, 3, 37, 3, -1, 1))
sketch7.addConstraint(Sketcher.Constraint("Symmetric", 3, 3, 4, 3, -2))
sketch7.addConstraint(Sketcher.Constraint("Symmetric", 2, 3, 5, 3, -2))
sketch7.addConstraint(Sketcher.Constraint("Symmetric", 11, 3, 25, 3, -2))
sketch7.addConstraint(Sketcher.Constraint("Symmetric", 15, 3, 29, 3, -2))
sketch7.addConstraint(Sketcher.Constraint("Horizontal", 0, 3, 1, 3))
sketch7.addConstraint(Sketcher.Constraint("Vertical", 9, 3, 13, 3))
sketch7.addConstraint(Sketcher.Constraint("Vertical", 11, 3, 15, 3))
sketch7.addConstraint(Sketcher.Constraint("Vertical", 13, 3, 19, 3))
sketch7.addConstraint(Sketcher.Constraint("Vertical", 19, 3, 23, 3))
sketch7.addConstraint(Sketcher.Constraint("Vertical", 27, 3, 31, 3))
sketch7.addConstraint(Sketcher.Constraint("Vertical", 31, 3, 33, 3))
sketch7.addConstraint(Sketcher.Constraint("Vertical", 29, 3, 35, 3))
sketch7.addConstraint(Sketcher.Constraint("Vertical", 35, 3, 39, 3))
sketch7.addConstraint(Sketcher.Constraint("Radius", 9, 4.0))
sketch7.addConstraint(Sketcher.Constraint("Diameter", 0, 3.2))
sketch7.addConstraint(Sketcher.Constraint("DistanceX", 8, 2, 8, 1, 50.0))
sketch7.addConstraint(Sketcher.Constraint("DistanceX", 0, 3, -1, 1, 135.0))
sketch7.addConstraint(Sketcher.Constraint("DistanceX", 1, 3, -1, 1, 115.0))
sketch7.addConstraint(Sketcher.Constraint("DistanceX", 9, 3, -1, 1, 130.0))
sketch7.addConstraint(Sketcher.Constraint("DistanceY", 1, 3, 2, 3, 95.0))
sketch7.addConstraint(Sketcher.Constraint("DistanceY", 9, 3, 13, 3, 15.0))
sketch7.addConstraint(Sketcher.Constraint("DistanceY", 9, 3, -1, 1, 25.02869))
pocket4 = body.newObject("PartDesign::Pocket", "Pocket003")
pocket4.Profile = sketch7
pocket4.Length = 4
pocket4.Reversed = True
doc.recompute()

chamfer3 = body.newObject("PartDesign::Chamfer", "Chamfer002")
chamfer3.Base = (pocket4, edges_at(pocket4, [
    (155, 2, -70),
    (155, 2, 70),
    (-155, 2, 70),
    (-155, 2, -70),
]))
chamfer3.Size = 5

sketch8 = body.newObject("Sketcher::SketchObject", "Sketch007")
sketch8.AttachmentSupport = (doc.getObject("XZ_Plane"), [""])
sketch8.MapMode = "FlatFace"
sketch8.AttachmentOffset = App.Placement(Vector(0, 0, -4), App.Rotation())
sketch8.addGeometry(Part.LineSegment(Vector(-57, -57, 0), Vector(-57, 57, 0)), False)
sketch8.addGeometry(Part.LineSegment(Vector(-57, 57, 0), Vector(57, 57, 0)), False)
sketch8.addGeometry(Part.LineSegment(Vector(57, 57, 0), Vector(57, -57, 0)), False)
sketch8.addGeometry(Part.LineSegment(Vector(57, -57, 0), Vector(-57, -57, 0)), False)
sketch8.addConstraint(Sketcher.Constraint("Coincident", 0, 2, 1, 1))
sketch8.addConstraint(Sketcher.Constraint("Coincident", 1, 2, 2, 1))
sketch8.addConstraint(Sketcher.Constraint("Coincident", 2, 2, 3, 1))
sketch8.addConstraint(Sketcher.Constraint("Coincident", 3, 2, 0, 1))
sketch8.addConstraint(Sketcher.Constraint("Vertical", 0))
sketch8.addConstraint(Sketcher.Constraint("Horizontal", 1))
sketch8.addConstraint(Sketcher.Constraint("Vertical", 2))
sketch8.addConstraint(Sketcher.Constraint("Horizontal", 3))
sketch8.addConstraint(Sketcher.Constraint("Symmetric", 0, 2, 2, 2, -1, 1))
sketch8.addConstraint(Sketcher.Constraint("DistanceX", 1, 1, 1, 2, 114.0))
sketch8.addConstraint(Sketcher.Constraint("DistanceY", 0, 1, 0, 2, 114.028365))
pocket5 = body.newObject("PartDesign::Pocket", "Pocket004")
pocket5.Profile = sketch8
pocket5.Length = 10
pocket5.Reversed = True
doc.recompute()

fillet5 = body.newObject("PartDesign::Fillet", "Fillet004")
fillet5.Base = (pocket5, edges_at(pocket5, [
    (-57, 2, 57.014),
    (57, 2, -57.014),
    (57, 2, 57.014),
    (-57, 2, -57.014),
]))
fillet5.Radius = 3

doc.recompute()
